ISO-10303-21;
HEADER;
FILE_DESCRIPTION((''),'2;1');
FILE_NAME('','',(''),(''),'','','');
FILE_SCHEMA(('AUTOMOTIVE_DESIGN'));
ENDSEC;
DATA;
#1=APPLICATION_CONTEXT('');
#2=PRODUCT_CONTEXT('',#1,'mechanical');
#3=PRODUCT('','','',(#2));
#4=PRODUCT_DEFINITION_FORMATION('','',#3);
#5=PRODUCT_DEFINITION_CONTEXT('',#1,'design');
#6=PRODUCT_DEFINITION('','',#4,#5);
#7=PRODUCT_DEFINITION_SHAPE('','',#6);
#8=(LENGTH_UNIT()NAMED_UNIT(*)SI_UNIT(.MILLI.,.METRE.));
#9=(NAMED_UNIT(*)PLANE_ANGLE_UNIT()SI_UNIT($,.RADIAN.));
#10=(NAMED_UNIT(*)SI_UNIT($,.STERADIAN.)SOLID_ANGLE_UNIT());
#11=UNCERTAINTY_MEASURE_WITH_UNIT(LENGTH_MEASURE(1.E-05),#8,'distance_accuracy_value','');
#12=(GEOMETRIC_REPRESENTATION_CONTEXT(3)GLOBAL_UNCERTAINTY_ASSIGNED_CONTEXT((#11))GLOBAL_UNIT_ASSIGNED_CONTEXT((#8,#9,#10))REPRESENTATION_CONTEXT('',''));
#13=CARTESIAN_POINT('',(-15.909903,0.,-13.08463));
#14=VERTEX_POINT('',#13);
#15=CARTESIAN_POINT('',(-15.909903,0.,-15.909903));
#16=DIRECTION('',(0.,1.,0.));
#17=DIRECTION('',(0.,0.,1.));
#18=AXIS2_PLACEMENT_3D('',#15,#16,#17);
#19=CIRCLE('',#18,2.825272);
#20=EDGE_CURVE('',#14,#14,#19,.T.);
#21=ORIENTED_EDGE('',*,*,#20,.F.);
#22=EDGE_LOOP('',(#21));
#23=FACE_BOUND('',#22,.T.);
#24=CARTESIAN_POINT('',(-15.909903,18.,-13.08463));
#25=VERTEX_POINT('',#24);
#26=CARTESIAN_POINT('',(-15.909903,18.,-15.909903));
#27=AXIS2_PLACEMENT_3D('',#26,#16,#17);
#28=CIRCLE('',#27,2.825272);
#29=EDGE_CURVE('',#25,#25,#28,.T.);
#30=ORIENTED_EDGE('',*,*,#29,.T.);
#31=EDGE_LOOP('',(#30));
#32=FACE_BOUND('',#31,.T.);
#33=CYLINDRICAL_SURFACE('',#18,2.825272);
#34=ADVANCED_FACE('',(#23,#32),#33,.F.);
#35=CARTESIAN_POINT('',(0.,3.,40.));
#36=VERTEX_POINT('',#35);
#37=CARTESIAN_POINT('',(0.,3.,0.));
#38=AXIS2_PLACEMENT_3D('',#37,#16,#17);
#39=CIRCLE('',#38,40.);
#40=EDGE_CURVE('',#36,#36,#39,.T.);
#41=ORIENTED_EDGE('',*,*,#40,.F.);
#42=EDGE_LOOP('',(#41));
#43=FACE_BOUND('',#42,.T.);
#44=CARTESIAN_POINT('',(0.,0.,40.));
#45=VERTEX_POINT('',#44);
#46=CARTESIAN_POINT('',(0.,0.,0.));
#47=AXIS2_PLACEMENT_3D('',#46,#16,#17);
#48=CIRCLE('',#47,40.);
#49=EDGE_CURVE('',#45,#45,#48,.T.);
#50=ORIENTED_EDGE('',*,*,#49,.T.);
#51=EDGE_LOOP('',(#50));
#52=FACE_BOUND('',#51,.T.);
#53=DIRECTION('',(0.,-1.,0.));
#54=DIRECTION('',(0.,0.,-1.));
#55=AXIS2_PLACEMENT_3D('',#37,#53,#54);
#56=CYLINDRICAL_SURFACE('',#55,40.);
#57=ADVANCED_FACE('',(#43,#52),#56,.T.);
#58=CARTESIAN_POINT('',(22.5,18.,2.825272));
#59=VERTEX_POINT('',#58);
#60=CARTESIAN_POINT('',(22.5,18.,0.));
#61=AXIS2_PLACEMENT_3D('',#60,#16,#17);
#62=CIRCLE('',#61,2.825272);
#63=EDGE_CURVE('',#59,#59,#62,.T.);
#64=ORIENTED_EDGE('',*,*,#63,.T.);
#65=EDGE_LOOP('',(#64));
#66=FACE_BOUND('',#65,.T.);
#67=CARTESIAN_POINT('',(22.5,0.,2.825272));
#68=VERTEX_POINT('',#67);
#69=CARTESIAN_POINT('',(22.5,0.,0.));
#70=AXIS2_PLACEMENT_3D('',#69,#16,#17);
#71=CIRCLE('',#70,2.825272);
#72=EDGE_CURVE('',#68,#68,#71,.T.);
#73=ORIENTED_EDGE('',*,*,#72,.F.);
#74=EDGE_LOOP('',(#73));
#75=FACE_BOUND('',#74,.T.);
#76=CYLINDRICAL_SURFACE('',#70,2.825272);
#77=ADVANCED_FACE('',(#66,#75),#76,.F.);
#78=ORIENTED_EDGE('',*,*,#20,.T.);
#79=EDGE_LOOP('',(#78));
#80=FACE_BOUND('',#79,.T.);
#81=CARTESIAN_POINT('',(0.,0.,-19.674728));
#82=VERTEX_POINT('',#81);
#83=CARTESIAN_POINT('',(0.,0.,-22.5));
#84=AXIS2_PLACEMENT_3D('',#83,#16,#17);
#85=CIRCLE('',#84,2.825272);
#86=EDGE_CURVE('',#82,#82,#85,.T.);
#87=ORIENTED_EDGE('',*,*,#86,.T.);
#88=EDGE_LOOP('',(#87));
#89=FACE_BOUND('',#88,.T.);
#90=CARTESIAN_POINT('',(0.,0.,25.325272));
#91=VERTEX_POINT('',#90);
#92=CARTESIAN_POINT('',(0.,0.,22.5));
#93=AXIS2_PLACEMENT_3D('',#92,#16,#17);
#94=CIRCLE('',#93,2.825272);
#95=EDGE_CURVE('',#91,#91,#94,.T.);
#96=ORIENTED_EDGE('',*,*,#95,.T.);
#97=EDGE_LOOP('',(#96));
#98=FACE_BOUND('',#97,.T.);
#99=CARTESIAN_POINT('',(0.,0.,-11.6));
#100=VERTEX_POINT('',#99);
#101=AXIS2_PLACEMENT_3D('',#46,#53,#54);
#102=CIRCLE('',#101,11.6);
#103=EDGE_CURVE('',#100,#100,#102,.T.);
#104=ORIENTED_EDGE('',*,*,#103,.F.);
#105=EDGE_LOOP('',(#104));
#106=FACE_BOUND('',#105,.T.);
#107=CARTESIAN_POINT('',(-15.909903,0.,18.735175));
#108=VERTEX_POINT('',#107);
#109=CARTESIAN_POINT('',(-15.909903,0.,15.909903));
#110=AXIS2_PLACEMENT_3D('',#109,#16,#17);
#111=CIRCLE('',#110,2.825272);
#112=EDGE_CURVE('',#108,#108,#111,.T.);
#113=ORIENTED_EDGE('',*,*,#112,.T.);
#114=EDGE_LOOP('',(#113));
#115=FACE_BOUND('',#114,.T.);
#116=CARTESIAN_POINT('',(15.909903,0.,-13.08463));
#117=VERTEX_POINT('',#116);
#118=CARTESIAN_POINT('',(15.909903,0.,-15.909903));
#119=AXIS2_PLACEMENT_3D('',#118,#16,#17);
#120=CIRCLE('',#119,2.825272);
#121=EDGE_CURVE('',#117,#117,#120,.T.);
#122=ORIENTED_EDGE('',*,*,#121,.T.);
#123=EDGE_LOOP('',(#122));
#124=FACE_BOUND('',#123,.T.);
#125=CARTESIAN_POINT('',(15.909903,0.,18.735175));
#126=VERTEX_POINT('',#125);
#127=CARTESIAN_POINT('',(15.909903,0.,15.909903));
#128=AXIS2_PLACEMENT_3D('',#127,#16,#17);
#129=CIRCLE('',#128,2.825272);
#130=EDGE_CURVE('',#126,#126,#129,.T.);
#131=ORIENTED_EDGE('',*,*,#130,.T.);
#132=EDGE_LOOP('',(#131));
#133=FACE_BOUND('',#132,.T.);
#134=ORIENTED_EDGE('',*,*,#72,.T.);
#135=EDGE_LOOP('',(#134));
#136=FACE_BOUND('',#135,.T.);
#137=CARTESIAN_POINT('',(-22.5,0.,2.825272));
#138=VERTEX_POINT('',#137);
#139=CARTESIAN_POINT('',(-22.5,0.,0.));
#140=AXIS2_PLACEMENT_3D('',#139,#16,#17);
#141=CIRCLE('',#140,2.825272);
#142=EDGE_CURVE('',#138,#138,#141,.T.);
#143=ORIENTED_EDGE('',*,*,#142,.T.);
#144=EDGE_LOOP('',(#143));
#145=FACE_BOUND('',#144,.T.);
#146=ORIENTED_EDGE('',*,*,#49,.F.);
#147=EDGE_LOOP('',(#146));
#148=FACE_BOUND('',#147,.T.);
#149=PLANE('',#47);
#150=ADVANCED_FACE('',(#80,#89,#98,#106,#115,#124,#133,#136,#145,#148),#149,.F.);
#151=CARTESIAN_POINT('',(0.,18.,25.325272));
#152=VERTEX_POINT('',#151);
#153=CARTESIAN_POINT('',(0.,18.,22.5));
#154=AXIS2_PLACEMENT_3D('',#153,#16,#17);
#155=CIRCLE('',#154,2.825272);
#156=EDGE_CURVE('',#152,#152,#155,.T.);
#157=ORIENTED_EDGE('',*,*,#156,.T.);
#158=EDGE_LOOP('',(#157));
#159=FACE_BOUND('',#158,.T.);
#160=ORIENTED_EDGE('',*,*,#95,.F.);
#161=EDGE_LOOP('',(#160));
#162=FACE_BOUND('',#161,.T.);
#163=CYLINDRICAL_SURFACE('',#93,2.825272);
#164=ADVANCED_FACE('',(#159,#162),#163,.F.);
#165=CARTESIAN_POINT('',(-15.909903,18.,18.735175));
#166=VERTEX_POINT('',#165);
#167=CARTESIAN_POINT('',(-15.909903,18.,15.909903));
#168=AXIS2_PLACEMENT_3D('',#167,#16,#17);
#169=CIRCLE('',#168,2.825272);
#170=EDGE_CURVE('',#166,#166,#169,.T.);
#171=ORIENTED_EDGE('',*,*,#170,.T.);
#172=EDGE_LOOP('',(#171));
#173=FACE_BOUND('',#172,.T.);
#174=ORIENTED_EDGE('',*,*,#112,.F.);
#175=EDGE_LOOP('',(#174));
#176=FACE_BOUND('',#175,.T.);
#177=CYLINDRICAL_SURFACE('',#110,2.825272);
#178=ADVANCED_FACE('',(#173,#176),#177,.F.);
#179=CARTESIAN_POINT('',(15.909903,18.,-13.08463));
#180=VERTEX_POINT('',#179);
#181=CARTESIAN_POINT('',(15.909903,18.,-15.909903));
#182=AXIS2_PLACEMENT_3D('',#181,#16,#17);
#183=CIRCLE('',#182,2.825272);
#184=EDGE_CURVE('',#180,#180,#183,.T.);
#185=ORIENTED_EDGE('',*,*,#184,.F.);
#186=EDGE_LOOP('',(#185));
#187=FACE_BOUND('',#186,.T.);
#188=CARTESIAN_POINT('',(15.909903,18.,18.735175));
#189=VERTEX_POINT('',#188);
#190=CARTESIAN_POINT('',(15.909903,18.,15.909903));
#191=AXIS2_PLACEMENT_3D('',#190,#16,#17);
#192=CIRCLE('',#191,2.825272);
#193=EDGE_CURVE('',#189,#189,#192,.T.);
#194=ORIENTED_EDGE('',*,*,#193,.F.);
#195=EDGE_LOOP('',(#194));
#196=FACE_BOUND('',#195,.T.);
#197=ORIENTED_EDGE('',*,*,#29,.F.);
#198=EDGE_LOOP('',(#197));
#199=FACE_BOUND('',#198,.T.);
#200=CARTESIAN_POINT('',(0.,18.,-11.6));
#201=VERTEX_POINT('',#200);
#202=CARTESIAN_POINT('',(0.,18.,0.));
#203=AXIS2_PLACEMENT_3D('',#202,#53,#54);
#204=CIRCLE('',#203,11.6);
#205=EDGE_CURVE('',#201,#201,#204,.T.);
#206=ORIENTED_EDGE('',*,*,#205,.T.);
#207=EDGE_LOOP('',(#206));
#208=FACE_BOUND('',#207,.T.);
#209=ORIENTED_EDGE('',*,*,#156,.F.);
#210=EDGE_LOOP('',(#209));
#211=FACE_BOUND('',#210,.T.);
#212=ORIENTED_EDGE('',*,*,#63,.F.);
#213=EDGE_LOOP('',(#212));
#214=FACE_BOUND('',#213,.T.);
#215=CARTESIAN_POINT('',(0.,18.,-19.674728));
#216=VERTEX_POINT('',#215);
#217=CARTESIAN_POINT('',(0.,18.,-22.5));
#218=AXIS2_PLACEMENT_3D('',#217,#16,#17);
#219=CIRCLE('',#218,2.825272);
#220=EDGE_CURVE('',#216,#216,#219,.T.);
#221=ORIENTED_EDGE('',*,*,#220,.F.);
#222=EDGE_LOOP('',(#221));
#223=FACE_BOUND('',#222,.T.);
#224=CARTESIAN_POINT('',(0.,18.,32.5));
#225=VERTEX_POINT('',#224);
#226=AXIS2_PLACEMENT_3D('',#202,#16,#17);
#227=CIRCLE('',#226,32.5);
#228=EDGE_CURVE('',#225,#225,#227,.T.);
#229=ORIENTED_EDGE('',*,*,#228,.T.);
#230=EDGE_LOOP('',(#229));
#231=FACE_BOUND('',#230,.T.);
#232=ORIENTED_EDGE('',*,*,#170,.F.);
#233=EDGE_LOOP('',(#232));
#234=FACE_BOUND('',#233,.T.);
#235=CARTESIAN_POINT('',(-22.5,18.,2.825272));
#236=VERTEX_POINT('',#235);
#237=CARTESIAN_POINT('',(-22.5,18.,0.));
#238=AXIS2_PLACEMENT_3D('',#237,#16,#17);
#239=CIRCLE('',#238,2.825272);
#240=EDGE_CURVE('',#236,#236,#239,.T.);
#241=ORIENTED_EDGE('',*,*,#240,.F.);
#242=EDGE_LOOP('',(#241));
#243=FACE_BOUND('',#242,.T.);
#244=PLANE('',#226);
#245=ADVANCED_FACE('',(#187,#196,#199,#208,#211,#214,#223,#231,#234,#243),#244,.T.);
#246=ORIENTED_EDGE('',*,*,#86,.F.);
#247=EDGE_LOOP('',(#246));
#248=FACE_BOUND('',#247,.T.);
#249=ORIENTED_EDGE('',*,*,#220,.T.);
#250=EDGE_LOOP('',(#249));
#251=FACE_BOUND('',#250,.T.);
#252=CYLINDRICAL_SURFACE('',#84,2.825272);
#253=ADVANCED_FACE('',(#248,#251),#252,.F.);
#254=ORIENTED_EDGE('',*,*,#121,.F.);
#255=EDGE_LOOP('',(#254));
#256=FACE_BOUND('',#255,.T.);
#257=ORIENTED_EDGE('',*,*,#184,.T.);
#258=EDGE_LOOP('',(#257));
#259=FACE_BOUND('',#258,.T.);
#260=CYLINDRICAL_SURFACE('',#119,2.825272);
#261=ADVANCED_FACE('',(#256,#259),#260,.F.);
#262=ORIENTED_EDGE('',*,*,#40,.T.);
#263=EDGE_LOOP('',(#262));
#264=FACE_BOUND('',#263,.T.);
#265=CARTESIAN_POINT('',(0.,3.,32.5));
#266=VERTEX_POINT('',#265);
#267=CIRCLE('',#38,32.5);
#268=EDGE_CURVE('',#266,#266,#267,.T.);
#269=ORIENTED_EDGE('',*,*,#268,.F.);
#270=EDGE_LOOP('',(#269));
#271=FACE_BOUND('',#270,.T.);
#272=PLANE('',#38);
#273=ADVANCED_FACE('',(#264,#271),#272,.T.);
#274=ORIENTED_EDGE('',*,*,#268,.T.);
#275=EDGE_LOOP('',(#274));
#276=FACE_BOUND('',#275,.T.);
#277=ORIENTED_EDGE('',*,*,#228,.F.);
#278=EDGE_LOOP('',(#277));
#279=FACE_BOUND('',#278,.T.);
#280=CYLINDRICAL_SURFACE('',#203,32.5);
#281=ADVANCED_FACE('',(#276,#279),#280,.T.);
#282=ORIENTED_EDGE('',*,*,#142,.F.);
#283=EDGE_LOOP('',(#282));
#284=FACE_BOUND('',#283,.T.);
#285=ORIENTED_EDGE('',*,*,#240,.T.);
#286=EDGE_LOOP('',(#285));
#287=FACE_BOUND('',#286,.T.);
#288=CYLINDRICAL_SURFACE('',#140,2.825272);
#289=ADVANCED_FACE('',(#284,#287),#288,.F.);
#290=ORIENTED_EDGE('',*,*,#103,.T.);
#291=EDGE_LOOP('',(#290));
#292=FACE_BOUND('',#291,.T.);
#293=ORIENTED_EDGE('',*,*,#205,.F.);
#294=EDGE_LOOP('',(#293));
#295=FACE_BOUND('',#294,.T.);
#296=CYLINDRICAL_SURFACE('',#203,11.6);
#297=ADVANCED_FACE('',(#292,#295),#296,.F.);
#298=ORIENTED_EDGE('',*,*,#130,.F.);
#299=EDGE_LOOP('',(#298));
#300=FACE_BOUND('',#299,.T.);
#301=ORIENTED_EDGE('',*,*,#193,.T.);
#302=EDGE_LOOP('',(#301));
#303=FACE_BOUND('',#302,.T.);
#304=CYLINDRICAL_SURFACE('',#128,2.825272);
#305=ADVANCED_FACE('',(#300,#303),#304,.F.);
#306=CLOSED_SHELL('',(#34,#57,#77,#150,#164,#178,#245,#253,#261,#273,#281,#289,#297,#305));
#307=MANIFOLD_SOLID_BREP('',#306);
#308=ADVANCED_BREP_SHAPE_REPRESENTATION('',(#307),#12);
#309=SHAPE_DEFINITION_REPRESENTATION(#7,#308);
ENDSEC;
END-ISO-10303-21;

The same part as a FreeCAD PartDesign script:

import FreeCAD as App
import Part
import Sketcher

V = App.Vector
Q = App.Units.Quantity

doc = App.newDocument("Part")
body = doc.addObject("PartDesign::Body", "Body")

# Sketch on XZ plane
sketch1 = body.newObject("Sketcher::SketchObject", "Sketch")
sketch1.AttachmentSupport = (doc.getObject("XZ_Plane"), [""])
sketch1.MapMode = "FlatFace"
sketch1.addGeometry(Part.Circle(V(0, 0, 0), V(0, 0, 1), 40), False)
sketch1.addConstraint(Sketcher.Constraint("Coincident", 0, 3, -1, 1))
sketch1.addConstraint(Sketcher.Constraint("Diameter", 0, Q("80 mm")))
pad1 = body.newObject("PartDesign::Pad", "Pad")
pad1.Profile = sketch1
pad1.Length = 3
pad1.Reversed = True

# Sketch on XZ plane
sketch2 = body.newObject("Sketcher::SketchObject", "Sketch001")
sketch2.AttachmentSupport = (doc.getObject("XZ_Plane"), [""])
sketch2.MapMode = "FlatFace"
sketch2.AttachmentOffset = App.Placement(V(0, 0, -3), App.Rotation())
sketch2.addGeometry(Part.Circle(V(0, 0, 0), V(0, 0, 1), 32), False)
sketch2.addConstraint(Sketcher.Constraint("Coincident", 0, 3, -1, 1))
sketch2.addConstraint(Sketcher.Constraint("Diameter", 0, Q("65 mm")))
pad2 = body.newObject("PartDesign::Pad", "Pad001")
pad2.Profile = sketch2
pad2.Length = 15
pad2.Reversed = True

# Sketch on XZ plane
sketch3 = body.newObject("Sketcher::SketchObject", "Sketch002")
sketch3.AttachmentSupport = (doc.getObject("XZ_Plane"), [""])
sketch3.MapMode = "FlatFace"
sketch3.AttachmentOffset = App.Placement(V(0, 0, -18), App.Rotation())
sketch3.addGeometry(Part.Circle(V(0, -22.5, 0), V(0, 0, 1), 2.8), False)
sketch3.addGeometry(Part.Circle(V(15.9, -15.9, 0), V(0, 0, 1), 2.8), False)
sketch3.addGeometry(Part.Circle(V(22.5, 0, 0), V(0, 0, 1), 2.8), False)
sketch3.addGeometry(Part.Circle(V(15.9, 15.9, 0), V(0, 0, 1), 2.8), False)
sketch3.addGeometry(Part.Circle(V(0, 22.5, 0), V(0, 0, 1), 2.8), False)
sketch3.addGeometry(Part.Circle(V(-15.9, 15.9, 0), V(0, 0, 1), 2.8), False)
sketch3.addGeometry(Part.Circle(V(-22.5, 0, 0), V(0, 0, 1), 2.8), False)
sketch3.addGeometry(Part.Circle(V(-15.9, -15.9, 0), V(0, 0, 1), 2.8), False)
sketch3.addConstraint(Sketcher.Constraint("Equal", 0, 1))
sketch3.addConstraint(Sketcher.Constraint("Equal", 1, 2))
sketch3.addConstraint(Sketcher.Constraint("Equal", 2, 3))
sketch3.addConstraint(Sketcher.Constraint("Equal", 3, 4))
sketch3.addConstraint(Sketcher.Constraint("Equal", 4, 5))
sketch3.addConstraint(Sketcher.Constraint("Equal", 5, 6))
sketch3.addConstraint(Sketcher.Constraint("Equal", 6, 7))
sketch3.addConstraint(Sketcher.Constraint("Symmetric", 0, 3, 4, 3, -1, 1))
sketch3.addConstraint(Sketcher.Constraint("Symmetric", 1, 3, 5, 3, -1, 1))
sketch3.addConstraint(Sketcher.Constraint("Symmetric", 2, 3, 6, 3, -1, 1))
sketch3.addConstraint(Sketcher.Constraint("Symmetric", 3, 3, 7, 3, -1, 1))
sketch3.addConstraint(Sketcher.Constraint("Symmetric", 3, 3, 5, 3, -2))
sketch3.addConstraint(Sketcher.Constraint("PointOnObject", 0, 3, -2))
sketch3.addConstraint(Sketcher.Constraint("PointOnObject", 2, 3, -1))
sketch3.addConstraint(Sketcher.Constraint("DistanceY", 0, 3, 4, 3, Q("45 mm")))
sketch3.addConstraint(Sketcher.Constraint("DistanceX", -1, 1, 2, 3, Q("22.5 mm")))
sketch3.addConstraint(Sketcher.Constraint("Diameter", 0, Q("5.650544 mm")))
sketch3.addConstraint(Sketcher.Constraint("DistanceX", -1, 1, 1, 3, Q("15.909903 mm")))
sketch3.addConstraint(Sketcher.Constraint("DistanceY", 1, 3, -1, 1, Q("15.909903 mm")))
pocket1 = body.newObject("PartDesign::Pocket", "Pocket")
pocket1.Profile = sketch3
pocket1.Type = "ThroughAll"
pocket1.Reversed = True

# Sketch on XZ plane
sketch4 = body.newObject("Sketcher::SketchObject", "Sketch003")
sketch4.AttachmentSupport = (doc.getObject("XZ_Plane"), [""])
sketch4.MapMode = "FlatFace"
sketch4.addGeometry(Part.Circle(V(0, 0, 0), V(0, 0, 1), 12), False)
sketch4.addConstraint(Sketcher.Constraint("Coincident", 0, 3, -1, 1))
sketch4.addConstraint(Sketcher.Constraint("Diameter", 0, Q("23.2 mm")))
pocket2 = body.newObject("PartDesign::Pocket", "Pocket001")
pocket2.Profile = sketch4
pocket2.Type = "ThroughAll"

doc.recompute()
